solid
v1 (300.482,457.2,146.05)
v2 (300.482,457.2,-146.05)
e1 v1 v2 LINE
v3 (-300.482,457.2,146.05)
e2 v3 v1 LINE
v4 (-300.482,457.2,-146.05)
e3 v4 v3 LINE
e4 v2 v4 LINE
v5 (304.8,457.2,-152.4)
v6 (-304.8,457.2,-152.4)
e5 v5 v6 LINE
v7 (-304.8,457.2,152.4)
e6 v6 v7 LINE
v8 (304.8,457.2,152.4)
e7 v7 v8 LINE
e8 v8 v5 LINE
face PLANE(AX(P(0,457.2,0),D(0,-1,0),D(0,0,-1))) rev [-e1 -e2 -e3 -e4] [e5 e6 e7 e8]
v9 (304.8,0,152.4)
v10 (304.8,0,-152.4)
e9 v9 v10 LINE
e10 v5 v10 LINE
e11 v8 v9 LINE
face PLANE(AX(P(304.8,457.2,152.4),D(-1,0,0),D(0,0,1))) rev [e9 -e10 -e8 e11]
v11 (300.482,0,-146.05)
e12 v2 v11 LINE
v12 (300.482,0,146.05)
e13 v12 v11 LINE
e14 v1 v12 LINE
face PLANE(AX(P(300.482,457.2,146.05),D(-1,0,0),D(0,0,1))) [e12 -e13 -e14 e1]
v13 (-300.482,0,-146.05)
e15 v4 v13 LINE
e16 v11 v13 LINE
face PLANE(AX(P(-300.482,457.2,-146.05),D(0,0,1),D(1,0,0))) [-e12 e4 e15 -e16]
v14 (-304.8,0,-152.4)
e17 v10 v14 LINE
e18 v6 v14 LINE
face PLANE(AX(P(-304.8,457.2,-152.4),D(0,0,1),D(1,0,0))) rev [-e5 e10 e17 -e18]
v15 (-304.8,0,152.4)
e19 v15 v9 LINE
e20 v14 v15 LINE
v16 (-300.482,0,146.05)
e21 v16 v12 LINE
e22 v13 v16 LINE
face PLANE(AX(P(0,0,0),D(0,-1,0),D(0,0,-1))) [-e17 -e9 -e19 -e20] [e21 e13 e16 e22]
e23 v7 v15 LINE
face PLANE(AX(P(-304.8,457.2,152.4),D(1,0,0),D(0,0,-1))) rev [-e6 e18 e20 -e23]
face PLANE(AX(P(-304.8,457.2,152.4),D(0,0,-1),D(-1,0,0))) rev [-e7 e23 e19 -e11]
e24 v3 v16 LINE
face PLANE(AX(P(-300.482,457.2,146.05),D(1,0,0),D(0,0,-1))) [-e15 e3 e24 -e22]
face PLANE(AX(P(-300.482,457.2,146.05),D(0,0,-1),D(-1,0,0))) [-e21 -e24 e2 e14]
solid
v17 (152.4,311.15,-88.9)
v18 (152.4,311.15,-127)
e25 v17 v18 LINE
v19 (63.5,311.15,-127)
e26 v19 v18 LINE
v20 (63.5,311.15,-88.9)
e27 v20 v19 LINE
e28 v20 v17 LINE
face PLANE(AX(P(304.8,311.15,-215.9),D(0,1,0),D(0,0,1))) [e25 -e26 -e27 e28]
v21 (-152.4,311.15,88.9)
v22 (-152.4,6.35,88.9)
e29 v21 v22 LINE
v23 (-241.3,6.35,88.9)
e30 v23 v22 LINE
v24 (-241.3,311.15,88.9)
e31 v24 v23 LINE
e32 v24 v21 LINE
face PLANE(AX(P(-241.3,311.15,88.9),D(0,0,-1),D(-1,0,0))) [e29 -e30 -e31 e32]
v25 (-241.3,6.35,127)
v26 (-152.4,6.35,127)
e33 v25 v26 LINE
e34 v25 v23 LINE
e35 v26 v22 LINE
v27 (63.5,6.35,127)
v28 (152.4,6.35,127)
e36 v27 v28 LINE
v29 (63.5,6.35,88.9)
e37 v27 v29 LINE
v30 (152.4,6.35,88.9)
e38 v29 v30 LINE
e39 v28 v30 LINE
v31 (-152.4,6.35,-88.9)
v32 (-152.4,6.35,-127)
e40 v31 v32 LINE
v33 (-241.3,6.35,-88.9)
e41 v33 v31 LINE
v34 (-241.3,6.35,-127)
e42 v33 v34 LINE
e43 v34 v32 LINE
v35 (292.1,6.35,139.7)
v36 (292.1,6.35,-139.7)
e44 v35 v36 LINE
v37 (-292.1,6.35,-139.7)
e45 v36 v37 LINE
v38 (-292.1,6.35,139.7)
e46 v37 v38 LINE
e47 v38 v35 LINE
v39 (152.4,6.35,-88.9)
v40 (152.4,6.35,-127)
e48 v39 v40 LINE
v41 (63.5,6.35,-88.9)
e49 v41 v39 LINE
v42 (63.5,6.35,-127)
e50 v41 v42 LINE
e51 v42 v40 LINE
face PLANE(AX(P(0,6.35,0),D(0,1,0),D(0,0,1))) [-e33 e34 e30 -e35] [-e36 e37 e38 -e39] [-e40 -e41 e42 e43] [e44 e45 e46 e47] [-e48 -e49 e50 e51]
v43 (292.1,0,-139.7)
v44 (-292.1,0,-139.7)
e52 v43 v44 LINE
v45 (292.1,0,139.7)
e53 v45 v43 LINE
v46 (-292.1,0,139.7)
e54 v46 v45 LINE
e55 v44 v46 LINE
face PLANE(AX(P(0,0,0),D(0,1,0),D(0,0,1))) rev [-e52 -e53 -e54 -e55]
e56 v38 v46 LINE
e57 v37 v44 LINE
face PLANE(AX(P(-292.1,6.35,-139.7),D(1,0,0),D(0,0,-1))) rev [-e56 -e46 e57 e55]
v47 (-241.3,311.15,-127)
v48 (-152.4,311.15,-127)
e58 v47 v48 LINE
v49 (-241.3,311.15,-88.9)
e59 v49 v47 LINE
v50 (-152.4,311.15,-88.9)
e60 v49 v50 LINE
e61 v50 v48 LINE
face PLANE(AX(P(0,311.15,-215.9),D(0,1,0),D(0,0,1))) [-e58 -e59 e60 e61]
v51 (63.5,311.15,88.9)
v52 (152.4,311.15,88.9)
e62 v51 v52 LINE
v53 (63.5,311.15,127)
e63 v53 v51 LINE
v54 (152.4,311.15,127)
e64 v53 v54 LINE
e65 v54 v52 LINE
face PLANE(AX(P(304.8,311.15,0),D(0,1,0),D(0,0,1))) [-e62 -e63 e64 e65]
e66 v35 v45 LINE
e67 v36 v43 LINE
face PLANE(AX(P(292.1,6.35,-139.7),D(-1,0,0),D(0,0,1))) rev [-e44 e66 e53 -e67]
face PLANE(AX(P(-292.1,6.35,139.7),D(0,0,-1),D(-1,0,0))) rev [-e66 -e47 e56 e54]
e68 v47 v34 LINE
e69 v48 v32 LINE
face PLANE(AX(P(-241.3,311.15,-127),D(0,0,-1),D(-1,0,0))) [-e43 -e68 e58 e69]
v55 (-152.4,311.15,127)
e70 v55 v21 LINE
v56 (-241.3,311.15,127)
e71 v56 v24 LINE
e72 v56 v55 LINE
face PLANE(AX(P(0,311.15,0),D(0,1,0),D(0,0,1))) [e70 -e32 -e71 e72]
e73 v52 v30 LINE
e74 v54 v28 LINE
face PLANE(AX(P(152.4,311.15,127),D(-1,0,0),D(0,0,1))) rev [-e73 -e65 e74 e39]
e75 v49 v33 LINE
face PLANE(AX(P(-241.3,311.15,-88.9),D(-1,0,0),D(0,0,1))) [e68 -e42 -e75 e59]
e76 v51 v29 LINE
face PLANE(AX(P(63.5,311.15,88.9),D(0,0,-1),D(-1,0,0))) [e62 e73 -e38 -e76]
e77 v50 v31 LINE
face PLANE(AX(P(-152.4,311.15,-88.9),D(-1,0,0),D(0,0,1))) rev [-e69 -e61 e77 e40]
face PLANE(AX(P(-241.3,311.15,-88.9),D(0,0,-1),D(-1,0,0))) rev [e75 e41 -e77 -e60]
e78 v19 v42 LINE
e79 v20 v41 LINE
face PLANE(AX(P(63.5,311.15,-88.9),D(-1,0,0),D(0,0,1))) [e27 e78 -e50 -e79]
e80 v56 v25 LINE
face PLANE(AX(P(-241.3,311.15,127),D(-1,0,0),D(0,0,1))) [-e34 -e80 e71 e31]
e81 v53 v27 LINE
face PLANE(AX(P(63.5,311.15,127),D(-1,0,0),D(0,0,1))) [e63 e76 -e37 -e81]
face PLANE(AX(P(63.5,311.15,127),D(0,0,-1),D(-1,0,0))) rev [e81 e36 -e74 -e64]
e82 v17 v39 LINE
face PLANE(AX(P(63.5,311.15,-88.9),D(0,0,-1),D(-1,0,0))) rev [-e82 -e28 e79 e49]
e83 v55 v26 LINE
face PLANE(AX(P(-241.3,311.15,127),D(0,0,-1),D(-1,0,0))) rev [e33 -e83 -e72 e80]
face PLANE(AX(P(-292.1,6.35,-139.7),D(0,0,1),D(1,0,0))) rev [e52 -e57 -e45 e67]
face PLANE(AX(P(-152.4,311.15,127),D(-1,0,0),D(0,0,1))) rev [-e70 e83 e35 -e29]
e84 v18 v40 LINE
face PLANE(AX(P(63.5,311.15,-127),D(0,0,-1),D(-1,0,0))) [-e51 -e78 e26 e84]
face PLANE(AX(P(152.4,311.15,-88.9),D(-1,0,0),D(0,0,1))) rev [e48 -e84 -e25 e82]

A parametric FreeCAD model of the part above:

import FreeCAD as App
import Part
import Sketcher
from FreeCAD import Vector
Q = App.Units.Quantity


def add_polygon(sketch, points):
    """Adds a closed chain of lines whose ends are joined by coincident constraints."""
    first, n = sketch.GeometryCount, len(points)
    for a, b in zip(points, points[1:] + points[:1]):
        sketch.addGeometry(Part.LineSegment(App.Vector(*a, 0), App.Vector(*b, 0)), False)
    for i in range(n):
        sketch.addConstraint(Sketcher.Constraint("Coincident", first + i, 2, first + (i + 1) % n, 1))

doc = App.newDocument("Part")
body = doc.addObject("PartDesign::Body", "Body")

# Sketch on XZ plane
sketch1 = doc.addObject("Sketcher::SketchObject", "Sketch")
body.addObject(sketch1)
sketch1.AttachmentSupport = (doc.XZ_Plane, [""])
sketch1.MapMode = "FlatFace"
add_polygon(sketch1, [(-292, -140), (-292, 140), (292, 140), (292, -140)])  # lines 0-3
sketch1.addConstraint([
    Sketcher.Constraint("Vertical", 0),
    Sketcher.Constraint("Horizontal", 1),
    Sketcher.Constraint("Vertical", 2),
    Sketcher.Constraint("Horizontal", 3),
    Sketcher.Constraint("Symmetric", 0, 2, 2, 2, -1, 1),
    Sketcher.Constraint("DistanceX", 1, 1, 1, 2, Q("23 in")),
    Sketcher.Constraint("DistanceY", 0, 1, 0, 2, Q("11 in")),
])
pad1 = doc.addObject("PartDesign::Pad", "Pad")
body.addObject(pad1)
pad1.Profile = sketch1
pad1.Length = Q("0.25 in")
pad1.Reversed = True

# Sketch on XZ plane
sketch2 = doc.addObject("Sketcher::SketchObject", "Sketch001")
body.addObject(sketch2)
sketch2.AttachmentSupport = (doc.XZ_Plane, [""])
sketch2.MapMode = "FlatFace"
sketch2.AttachmentOffset = App.Placement(Vector(0, 0, -0.25 * 25.4), App.Rotation())
add_polygon(sketch2, [(-241, 89), (-241, 127), (-152, 127), (-152, 89)])  # lines 0-3
sketch2.addConstraint([
    Sketcher.Constraint("Vertical", 0),
    Sketcher.Constraint("Horizontal", 1),
    Sketcher.Constraint("Vertical", 2),
    Sketcher.Constraint("Horizontal", 3),
    Sketcher.Constraint("DistanceX", 1, 1, 1, 2, Q("3.5 in")),
    Sketcher.Constraint("DistanceY", 0, 1, 0, 2, Q("1.5 in")),
    Sketcher.Constraint("DistanceY", -1, 1, 0, 2, Q("5 in")),
    Sketcher.Constraint("DistanceX", 1, 2, -1, 1, Q("6 in")),
])
pad2 = doc.addObject("PartDesign::Pad", "Pad001")
body.addObject(pad2)
pad2.Profile = sketch2
pad2.Length = Q("12 in")
pad2.Reversed = True
doc.recompute()

linearpattern = doc.addObject("PartDesign::LinearPattern", "LinearPattern")
body.addObject(linearpattern)
linearpattern.Originals = [pad2]
linearpattern.Direction = (doc.X_Axis, [""])
linearpattern.Mode = "offset"
linearpattern.Offset = Q("12 in")
linearpattern.Occurrences = 2
body.Tip = linearpattern
doc.recompute()

linearpattern2 = doc.addObject("PartDesign::LinearPattern", "LinearPattern001")
body.addObject(linearpattern2)
linearpattern2.Originals = [pad2]
linearpattern2.Direction = (doc.Z_Axis, [""])
linearpattern2.Mode = "offset"
linearpattern2.Offset = Q("8.5 in")
linearpattern2.Occurrences = 2
linearpattern2.Reversed = True
body.Tip = linearpattern2

# Sketch on XZ plane
sketch3 = doc.addObject("Sketcher::SketchObject", "Sketch002")
body.addObject(sketch3)
sketch3.AttachmentSupport = (doc.XZ_Plane, [""])
sketch3.MapMode = "FlatFace"
sketch3.AttachmentOffset = App.Placement(Vector(0, 0, -0.25 * 25.4), App.Rotation())
add_polygon(sketch3, [(64, -127), (64, -89), (152, -89), (152, -127)])  # lines 0-3
sketch3.addConstraint([
    Sketcher.Constraint("Vertical", 0),
    Sketcher.Constraint("Horizontal", 1),
    Sketcher.Constraint("Vertical", 2),
    Sketcher.Constraint("Horizontal", 3),
    Sketcher.Constraint("DistanceX", 1, 1, 1, 2, Q("3.5 in")),
    Sketcher.Constraint("DistanceY", 0, 1, 0, 2, Q("1.5 in")),
    Sketcher.Constraint("DistanceX", -1, 1, 1, 2, Q("6 in")),
    Sketcher.Constraint("DistanceY", 2, 2, -1, 1, Q("5 in")),
])
pad3 = doc.addObject("PartDesign::Pad", "Pad002")
body.addObject(pad3)
pad3.Profile = sketch3
pad3.Length = Q("12 in")
pad3.Reversed = True
body2 = doc.addObject("PartDesign::Body", "Body001")

# Sketch on XZ plane
sketch4 = doc.addObject("Sketcher::SketchObject", "Sketch003")
body2.addObject(sketch4)
sketch4.AttachmentSupport = (doc.getObject("XZ_Plane001"), [""])
sketch4.MapMode = "FlatFace"
add_polygon(sketch4, [(-305, -152), (-305, 152), (305, 152), (305, -152)])  # lines 0-3
add_polygon(sketch4, [(300, 146), (-300, 146), (-300, -146), (300, -146)])  # lines 4-7
sketch4.addConstraint([
    Sketcher.Constraint("Vertical", 0),
    Sketcher.Constraint("Horizontal", 1),
    Sketcher.Constraint("Vertical", 2),
    Sketcher.Constraint("Horizontal", 3),
    Sketcher.Constraint("Horizontal", 4),
    Sketcher.Constraint("Vertical", 5),
    Sketcher.Constraint("Horizontal", 6),
    Sketcher.Constraint("Vertical", 7),
    Sketcher.Constraint("Symmetric", 0, 2, 2, 2, -1, 1),
    Sketcher.Constraint("Symmetric", 4, 2, 6, 2, -1, 1),
    Sketcher.Constraint("DistanceX", 1, 1, 1, 2, Q("24 in")),
    Sketcher.Constraint("DistanceY", 0, 1, 0, 2, Q("12 in")),
    Sketcher.Constraint("DistanceY", 5, 2, 5, 1, Q("11.5 in")),
    Sketcher.Constraint("DistanceX", 4, 2, 4, 1, Q("23.66 in")),
])
pad4 = doc.addObject("PartDesign::Pad", "Pad003")
body2.addObject(pad4)
pad4.Profile = sketch4
pad4.Length = Q("18 in")
pad4.Reversed = True

doc.recompute()
